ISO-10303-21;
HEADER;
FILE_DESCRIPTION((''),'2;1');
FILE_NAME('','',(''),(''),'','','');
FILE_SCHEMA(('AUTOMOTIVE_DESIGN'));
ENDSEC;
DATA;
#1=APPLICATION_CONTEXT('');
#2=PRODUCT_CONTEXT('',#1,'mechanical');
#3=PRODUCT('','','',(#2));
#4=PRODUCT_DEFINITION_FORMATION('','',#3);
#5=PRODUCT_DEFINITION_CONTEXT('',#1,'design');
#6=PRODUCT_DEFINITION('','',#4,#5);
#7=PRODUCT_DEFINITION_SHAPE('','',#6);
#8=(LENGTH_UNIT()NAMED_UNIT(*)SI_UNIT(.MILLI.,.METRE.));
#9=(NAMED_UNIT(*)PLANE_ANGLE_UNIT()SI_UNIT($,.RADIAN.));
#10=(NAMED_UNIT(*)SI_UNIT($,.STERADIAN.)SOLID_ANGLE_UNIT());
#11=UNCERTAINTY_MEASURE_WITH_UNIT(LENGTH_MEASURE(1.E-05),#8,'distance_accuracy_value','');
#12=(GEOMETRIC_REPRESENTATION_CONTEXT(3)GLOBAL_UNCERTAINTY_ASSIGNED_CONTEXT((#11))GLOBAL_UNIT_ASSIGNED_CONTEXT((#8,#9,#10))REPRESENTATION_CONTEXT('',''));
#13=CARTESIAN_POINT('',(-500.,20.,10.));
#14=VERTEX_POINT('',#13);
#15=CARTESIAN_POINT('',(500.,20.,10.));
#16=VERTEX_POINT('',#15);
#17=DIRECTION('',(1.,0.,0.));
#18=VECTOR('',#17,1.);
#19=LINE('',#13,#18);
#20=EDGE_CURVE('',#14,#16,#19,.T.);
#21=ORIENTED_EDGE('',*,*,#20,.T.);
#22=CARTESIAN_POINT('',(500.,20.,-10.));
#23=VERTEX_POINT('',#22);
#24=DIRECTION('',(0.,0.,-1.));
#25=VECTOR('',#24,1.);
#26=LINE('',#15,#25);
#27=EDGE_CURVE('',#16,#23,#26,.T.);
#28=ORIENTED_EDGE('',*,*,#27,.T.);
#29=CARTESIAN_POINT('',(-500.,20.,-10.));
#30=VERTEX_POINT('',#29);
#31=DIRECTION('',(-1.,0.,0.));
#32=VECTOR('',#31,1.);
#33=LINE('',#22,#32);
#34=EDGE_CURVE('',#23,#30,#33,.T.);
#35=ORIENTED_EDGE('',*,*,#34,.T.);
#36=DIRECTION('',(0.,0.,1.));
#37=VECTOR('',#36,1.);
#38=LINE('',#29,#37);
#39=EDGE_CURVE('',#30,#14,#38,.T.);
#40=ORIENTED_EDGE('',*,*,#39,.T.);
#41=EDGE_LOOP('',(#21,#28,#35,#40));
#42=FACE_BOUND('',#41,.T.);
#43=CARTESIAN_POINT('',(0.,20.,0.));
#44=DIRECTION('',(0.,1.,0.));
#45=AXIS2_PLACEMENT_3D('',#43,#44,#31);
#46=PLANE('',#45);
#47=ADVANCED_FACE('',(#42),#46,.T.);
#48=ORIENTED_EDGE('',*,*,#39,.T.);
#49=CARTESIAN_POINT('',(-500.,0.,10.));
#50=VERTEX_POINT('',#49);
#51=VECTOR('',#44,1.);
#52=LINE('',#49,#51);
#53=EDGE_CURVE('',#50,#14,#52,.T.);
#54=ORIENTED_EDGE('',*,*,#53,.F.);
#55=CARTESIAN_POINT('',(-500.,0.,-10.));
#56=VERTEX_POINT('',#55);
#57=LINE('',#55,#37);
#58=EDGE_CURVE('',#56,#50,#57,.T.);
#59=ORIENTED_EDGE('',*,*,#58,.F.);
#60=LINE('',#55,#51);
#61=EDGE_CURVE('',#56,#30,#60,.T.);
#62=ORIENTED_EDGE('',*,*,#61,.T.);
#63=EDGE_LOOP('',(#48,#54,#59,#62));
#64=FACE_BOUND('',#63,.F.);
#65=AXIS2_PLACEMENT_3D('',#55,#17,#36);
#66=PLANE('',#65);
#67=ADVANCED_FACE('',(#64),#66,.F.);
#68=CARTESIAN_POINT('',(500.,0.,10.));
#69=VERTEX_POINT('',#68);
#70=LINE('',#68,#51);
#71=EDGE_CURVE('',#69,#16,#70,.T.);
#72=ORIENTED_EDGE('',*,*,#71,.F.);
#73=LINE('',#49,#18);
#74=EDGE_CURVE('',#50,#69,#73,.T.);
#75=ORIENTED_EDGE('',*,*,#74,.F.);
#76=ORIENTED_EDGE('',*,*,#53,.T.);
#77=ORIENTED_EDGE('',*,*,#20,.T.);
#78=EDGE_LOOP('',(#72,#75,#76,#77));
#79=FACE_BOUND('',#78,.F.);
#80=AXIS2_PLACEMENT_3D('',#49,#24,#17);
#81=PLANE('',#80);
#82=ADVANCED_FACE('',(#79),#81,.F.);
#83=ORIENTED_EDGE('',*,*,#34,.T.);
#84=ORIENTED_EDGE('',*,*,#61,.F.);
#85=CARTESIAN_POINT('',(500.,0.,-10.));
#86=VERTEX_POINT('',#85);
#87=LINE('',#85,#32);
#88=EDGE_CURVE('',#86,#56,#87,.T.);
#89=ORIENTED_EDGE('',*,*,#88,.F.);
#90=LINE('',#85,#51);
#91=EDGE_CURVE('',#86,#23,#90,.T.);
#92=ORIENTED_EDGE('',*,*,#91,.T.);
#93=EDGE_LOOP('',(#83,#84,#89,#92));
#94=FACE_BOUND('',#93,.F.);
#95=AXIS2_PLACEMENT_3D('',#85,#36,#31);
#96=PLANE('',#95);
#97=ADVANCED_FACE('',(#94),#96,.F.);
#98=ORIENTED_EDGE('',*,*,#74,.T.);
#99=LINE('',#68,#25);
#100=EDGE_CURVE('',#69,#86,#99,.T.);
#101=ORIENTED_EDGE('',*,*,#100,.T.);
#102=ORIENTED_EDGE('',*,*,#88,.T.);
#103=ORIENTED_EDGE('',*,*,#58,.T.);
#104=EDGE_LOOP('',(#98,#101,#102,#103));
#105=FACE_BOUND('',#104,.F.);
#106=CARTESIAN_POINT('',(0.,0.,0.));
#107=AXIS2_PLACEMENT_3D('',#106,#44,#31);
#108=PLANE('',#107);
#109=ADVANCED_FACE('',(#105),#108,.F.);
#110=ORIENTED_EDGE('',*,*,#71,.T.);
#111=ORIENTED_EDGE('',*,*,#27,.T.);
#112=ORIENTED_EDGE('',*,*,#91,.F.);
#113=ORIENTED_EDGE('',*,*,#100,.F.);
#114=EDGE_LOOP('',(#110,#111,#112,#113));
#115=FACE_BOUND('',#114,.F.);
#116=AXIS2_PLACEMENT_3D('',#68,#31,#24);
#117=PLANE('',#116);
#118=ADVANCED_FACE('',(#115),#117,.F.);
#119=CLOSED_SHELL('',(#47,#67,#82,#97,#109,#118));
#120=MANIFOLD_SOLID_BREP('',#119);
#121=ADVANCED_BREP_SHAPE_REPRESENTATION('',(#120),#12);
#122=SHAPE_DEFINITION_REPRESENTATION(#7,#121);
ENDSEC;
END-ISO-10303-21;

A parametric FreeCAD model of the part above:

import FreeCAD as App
import Part
import Sketcher
Q = App.Units.Quantity

doc = App.newDocument("Part")
body = doc.addObject("PartDesign::Body", "Body")

# Sketch on XZ plane
sketch1 = doc.addObject("Sketcher::SketchObject", "Sketch")
body.addObject(sketch1)
sketch1.AttachmentSupport = (doc.XZ_Plane, [""])
sketch1.MapMode = "FlatFace"
sketch1.addGeometry(Part.LineSegment(App.Vector(500, 10, 0), App.Vector(500, -10, 0)), False)
sketch1.addGeometry(Part.LineSegment(App.Vector(500, -10, 0), App.Vector(-500, -10, 0)), False)
sketch1.addGeometry(Part.LineSegment(App.Vector(-500, -10, 0), App.Vector(-500, 10, 0)), False)
sketch1.addGeometry(Part.LineSegment(App.Vector(-500, 10, 0), App.Vector(500, 10, 0)), False)
sketch1.addConstraint(Sketcher.Constraint("Coincident", 0, 2, 1, 1))
sketch1.addConstraint(Sketcher.Constraint("Coincident", 1, 2, 2, 1))
sketch1.addConstraint(Sketcher.Constraint("Coincident", 2, 2, 3, 1))
sketch1.addConstraint(Sketcher.Constraint("Coincident", 3, 2, 0, 1))
sketch1.addConstraint(Sketcher.Constraint("Vertical", 0))
sketch1.addConstraint(Sketcher.Constraint("Horizontal", 1))
sketch1.addConstraint(Sketcher.Constraint("Vertical", 2))
sketch1.addConstraint(Sketcher.Constraint("Horizontal", 3))
sketch1.addConstraint(Sketcher.Constraint("Symmetric", 0, 2, 2, 2, -1, 1))
sketch1.addConstraint(Sketcher.Constraint("DistanceX", 1, 2, 1, 1, Q("1000 mm")))
sketch1.addConstraint(Sketcher.Constraint("DistanceY", 0, 2, 0, 1, Q("20 mm")))
pad1 = doc.addObject("PartDesign::Pad", "Pad")
body.addObject(pad1)
pad1.Profile = sketch1
pad1.Length = 20
pad1.Reversed = True

doc.recompute()
